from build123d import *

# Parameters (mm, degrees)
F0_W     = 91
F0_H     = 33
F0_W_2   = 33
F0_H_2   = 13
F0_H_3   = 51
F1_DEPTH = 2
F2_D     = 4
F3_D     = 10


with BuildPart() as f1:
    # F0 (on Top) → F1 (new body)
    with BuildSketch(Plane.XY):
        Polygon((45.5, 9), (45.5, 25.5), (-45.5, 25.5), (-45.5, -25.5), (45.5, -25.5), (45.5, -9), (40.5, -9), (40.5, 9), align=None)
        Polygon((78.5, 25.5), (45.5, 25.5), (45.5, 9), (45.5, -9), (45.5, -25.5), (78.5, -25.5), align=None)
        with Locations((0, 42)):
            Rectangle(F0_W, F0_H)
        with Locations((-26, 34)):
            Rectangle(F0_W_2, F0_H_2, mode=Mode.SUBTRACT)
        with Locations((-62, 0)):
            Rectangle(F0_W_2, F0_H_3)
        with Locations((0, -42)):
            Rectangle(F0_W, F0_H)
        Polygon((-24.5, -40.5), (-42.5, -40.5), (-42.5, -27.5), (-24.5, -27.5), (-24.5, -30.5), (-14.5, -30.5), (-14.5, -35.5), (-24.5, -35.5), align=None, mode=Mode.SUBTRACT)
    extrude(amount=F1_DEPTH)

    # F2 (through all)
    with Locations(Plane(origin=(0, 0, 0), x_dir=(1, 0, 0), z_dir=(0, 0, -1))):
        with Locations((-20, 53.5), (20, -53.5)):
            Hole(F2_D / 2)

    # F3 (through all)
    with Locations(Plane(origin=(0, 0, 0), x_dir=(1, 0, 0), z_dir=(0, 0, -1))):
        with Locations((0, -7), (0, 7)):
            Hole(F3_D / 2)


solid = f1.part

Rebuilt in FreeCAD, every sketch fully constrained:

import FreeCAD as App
import Part
import Sketcher


def add_polygon(sketch, points):
    """Adds a closed chain of lines whose ends are joined by coincident constraints."""
    first, n = sketch.GeometryCount, len(points)
    for a, b in zip(points, points[1:] + points[:1]):
        sketch.addGeometry(Part.LineSegment(App.Vector(*a, 0), App.Vector(*b, 0)), False)
    for i in range(n):
        sketch.addConstraint(Sketcher.Constraint("Coincident", first + i, 2, first + (i + 1) % n, 1))

doc = App.newDocument("Part")
params = doc.addObject("Spreadsheet::Sheet", "Params")
for row, (alias, value) in enumerate([
    ("sketch1_width", "33 mm"),
    ("sketch1_width2", "91 mm"),
    ("sketch1_width3", "18 mm"),
    ("sketch1_width4", "10 mm"),
    ("sketch1_width5", "5 mm"),
    ("pad1_length", "2 mm"),
    ("sketch2_diameter", "4 mm"),
    ("hole_diameter", "4 mm"),
    ("sketch3_diameter", "10 mm"),
    ("hole2_diameter", "10 mm"),
], start=1):
    params.set(f"A{row}", alias)
    params.set(f"B{row}", "=" + value)
    params.setAlias(f"B{row}", alias)

body = doc.addObject("PartDesign::Body", "Body")

sketch1 = body.newObject("Sketcher::SketchObject", "Sketch")
sketch1.AttachmentSupport = (doc.getObject("XY_Plane"), [""])
sketch1.MapMode = "FlatFace"
add_polygon(sketch1, [(78.5, -25.5), (78.5, 25.5), (45.5, 25.5), (45.5, 58.5), (-45.5, 58.5), (-45.5, 25.5), (-78.5, 25.5), (-78.5, -25.5), (-45.5, -25.5), (-45.5, -58.5), (45.5, -58.5), (45.5, -25.5)])
add_polygon(sketch1, [(-24.5, -35.5), (-24.5, -40.5), (-42.5, -40.5), (-42.5, -27.5), (-24.5, -27.5), (-24.5, -30.5), (-14.5, -30.5), (-14.5, -35.5)])
add_polygon(sketch1, [(-9.5, 27.5), (-42.5, 27.5), (-42.5, 40.5), (-9.5, 40.5)])
add_polygon(sketch1, [(45.5, -9), (40.5, -9), (40.5, 9), (45.5, 9)])
sketch1.addConstraint([
    Sketcher.Constraint("Vertical", 0),
    Sketcher.Constraint("Horizontal", 1),
    Sketcher.Constraint("Vertical", 2),
    Sketcher.Constraint("Horizontal", 3),
    Sketcher.Constraint("Vertical", 4),
    Sketcher.Constraint("Horizontal", 5),
    Sketcher.Constraint("Vertical", 6),
    Sketcher.Constraint("Horizontal", 7),
    Sketcher.Constraint("Vertical", 8),
    Sketcher.Constraint("Horizontal", 9),
    Sketcher.Constraint("Vertical", 10),
    Sketcher.Constraint("Horizontal", 11),
    Sketcher.Constraint("Vertical", 12),
    Sketcher.Constraint("Horizontal", 13),
    Sketcher.Constraint("Vertical", 14),
    Sketcher.Constraint("Horizontal", 15),
    Sketcher.Constraint("Vertical", 16),
    Sketcher.Constraint("Horizontal", 17),
    Sketcher.Constraint("Vertical", 18),
    Sketcher.Constraint("Horizontal", 19),
    Sketcher.Constraint("Horizontal", 20),
    Sketcher.Constraint("Vertical", 21),
    Sketcher.Constraint("Horizontal", 22),
    Sketcher.Constraint("Vertical", 23),
    Sketcher.Constraint("Horizontal", 24),
    Sketcher.Constraint("Vertical", 25),
    Sketcher.Constraint("Horizontal", 26),
    Sketcher.Constraint("Vertical", 27),
    Sketcher.Constraint("Symmetric", 0, 2, 6, 2, -1, 1),
    Sketcher.Constraint("Symmetric", 2, 2, 8, 2, -1, 1),
    Sketcher.Constraint("Symmetric", 4, 2, 10, 2, -1, 1),
    Sketcher.Constraint("Symmetric", 1, 2, 4, 2, -2),
    Sketcher.Constraint("Symmetric", 14, 2, 20, 2, -1),
    Sketcher.Constraint("Vertical", 12, 2, 15, 2),
    Sketcher.Constraint("Vertical", 10, 2, 26, 2),
    Sketcher.Constraint("Equal", 11, 20),
    Sketcher.Constraint("Equal", 22, 2),
    Sketcher.Constraint("Equal", 26, 12),
    Sketcher.Constraint("Equal", 12, 18),
    Sketcher.Constraint("Equal", 14, 21),
    Sketcher.Constraint("Equal", 15, 25),
    Sketcher.Constraint("DistanceX", 1, 2, 1, 1, 33.0),
    Sketcher.Constraint("DistanceX", 3, 2, 3, 1, 91.0),
    Sketcher.Constraint("DistanceX", 13, 2, 13, 1, 18.0),
    Sketcher.Constraint("DistanceX", 17, 1, 17, 2, 10.0),
    Sketcher.Constraint("DistanceX", 24, 2, 24, 1, 5.0),
    Sketcher.Constraint("DistanceY", 0, 1, 0, 2, 51.0),
    Sketcher.Constraint("DistanceY", 14, 1, 14, 2, 13.0),
    Sketcher.Constraint("DistanceY", 24, 2, -1, 1, 9.0),
    Sketcher.Constraint("DistanceX", 7, 2, 12, 2, 21.0),
    Sketcher.Constraint("DistanceY", 12, 2, 7, 2, 15.0),
])
sketch1.setExpression("Constraints[69]", "Params.sketch1_width")
sketch1.setExpression("Constraints[70]", "Params.sketch1_width2")
sketch1.setExpression("Constraints[71]", "Params.sketch1_width3")
sketch1.setExpression("Constraints[72]", "Params.sketch1_width4")
sketch1.setExpression("Constraints[73]", "Params.sketch1_width5")
pad1 = body.newObject("PartDesign::Pad", "Pad")
pad1.Profile = sketch1
pad1.setExpression("Length", "Params.pad1_length")

sketch2 = body.newObject("Sketcher::SketchObject", "Sketch001")
sketch2.AttachmentSupport = (doc.getObject("XY_Plane"), [""])
sketch2.MapMode = "FlatFace"
sketch2.addGeometry([
    Part.Circle(App.Vector(-20, -53.5, 0), App.Vector(0, 0, 1), 2),
    Part.Circle(App.Vector(20, 53.5, 0), App.Vector(0, 0, 1), 2),
], False)
sketch2.addConstraint([
    Sketcher.Constraint("Equal", 0, 1),
    Sketcher.Constraint("Symmetric", 0, 3, 1, 3, -1, 1),
    Sketcher.Constraint("Diameter", 0, 4.0),
    Sketcher.Constraint("DistanceX", 0, 3, -1, 1, 20.0),
    Sketcher.Constraint("DistanceY", 0, 3, 1, 3, 107.0),
])
sketch2.setExpression("Constraints[2]", "Params.sketch2_diameter")
doc.recompute()
hole = body.newObject("PartDesign::Hole", "Hole")
hole.Profile = sketch2
hole.ThreadType = "None"
hole.setExpression("Diameter", "Params.hole_diameter")
hole.DepthType = "ThroughAll"
hole.Reversed = True

sketch3 = body.newObject("Sketcher::SketchObject", "Sketch002")
sketch3.AttachmentSupport = (doc.getObject("XY_Plane"), [""])
sketch3.MapMode = "FlatFace"
sketch3.addGeometry([
    Part.Circle(App.Vector(0, 7, 0), App.Vector(0, 0, 1), 5),
    Part.Circle(App.Vector(0, -7, 0), App.Vector(0, 0, 1), 5),
], False)
sketch3.addConstraint([
    Sketcher.Constraint("Equal", 0, 1),
    Sketcher.Constraint("Symmetric", 0, 3, 1, 3, -1, 1),
    Sketcher.Constraint("PointOnObject", 0, 3, -2),
    Sketcher.Constraint("Diameter", 0, 10.0),
    Sketcher.Constraint("DistanceY", -1, 1, 0, 3, 7.0),
])
sketch3.setExpression("Constraints[3]", "Params.sketch3_diameter")
doc.recompute()
hole2 = body.newObject("PartDesign::Hole", "Hole001")
hole2.Profile = sketch3
hole2.ThreadType = "None"
hole2.setExpression("Diameter", "Params.hole2_diameter")
hole2.DepthType = "ThroughAll"
hole2.Reversed = True

doc.recompute()
